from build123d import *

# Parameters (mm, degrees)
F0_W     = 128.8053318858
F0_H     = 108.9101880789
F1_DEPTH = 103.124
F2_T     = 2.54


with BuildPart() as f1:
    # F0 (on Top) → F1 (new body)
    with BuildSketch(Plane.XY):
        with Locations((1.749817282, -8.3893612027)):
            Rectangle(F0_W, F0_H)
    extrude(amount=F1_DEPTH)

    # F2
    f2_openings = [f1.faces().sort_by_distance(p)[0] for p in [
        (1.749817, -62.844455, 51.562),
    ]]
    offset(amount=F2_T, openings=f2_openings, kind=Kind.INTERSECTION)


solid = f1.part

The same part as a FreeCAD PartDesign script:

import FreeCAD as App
import Part
import Sketcher
Q = App.Units.Quantity


def faces_at(feature, points):
    """Names of the faces that lie closest to the given points."""
    faces = feature.Shape.Faces
    near = lambda p: min(range(len(faces)), key=lambda i: faces[i].distToShape(Part.Vertex(*p))[0])
    return sorted({f"Face{near(p) + 1}" for p in points})

doc = App.newDocument("Part")
body = doc.addObject("PartDesign::Body", "Body")

# Sketch on XY plane
sketch1 = body.newObject("Sketcher::SketchObject", "Sketch")
sketch1.AttachmentSupport = (doc.getObject("XY_Plane"), [""])
sketch1.MapMode = "FlatFace"
sketch1.addGeometry([
    Part.LineSegment(App.Vector(-62.652849, 46.065733, 0), App.Vector(-62.652849, -62.844455, 0)),
    Part.LineSegment(App.Vector(-62.652849, -62.844455, 0), App.Vector(66.152483, -62.844455, 0)),
    Part.LineSegment(App.Vector(66.152483, -62.844455, 0), App.Vector(66.152483, 46.065733, 0)),
    Part.LineSegment(App.Vector(66.152483, 46.065733, 0), App.Vector(-62.652849, 46.065733, 0)),
], False)
sketch1.addConstraint([
    Sketcher.Constraint("Coincident", 0, 2, 1, 1),
    Sketcher.Constraint("Coincident", 1, 2, 2, 1),
    Sketcher.Constraint("Coincident", 2, 2, 3, 1),
    Sketcher.Constraint("Coincident", 3, 2, 0, 1),
    Sketcher.Constraint("Vertical", 0),
    Sketcher.Constraint("Horizontal", 1),
    Sketcher.Constraint("Vertical", 2),
    Sketcher.Constraint("Horizontal", 3),
    Sketcher.Constraint("DistanceX", 1, 1, 1, 2, 128.805332),
    Sketcher.Constraint("DistanceY", 0, 2, 0, 1, 108.910188),
    Sketcher.Constraint("DistanceX", 0, 2, -1, 1, 62.652849),
    Sketcher.Constraint("DistanceY", 0, 2, -1, 1, 62.844455),
])
pad1 = body.newObject("PartDesign::Pad", "Pad")
pad1.Profile = sketch1
pad1.Length = Q("4.06 in")
doc.recompute()

thickness = body.newObject("PartDesign::Thickness", "Thickness")
thickness.Base = (pad1, faces_at(pad1, [(1.75, -62.844, 51.562)]))
thickness.Value = Q("0.1 in")
thickness.Reversed = False
thickness.Join = "Intersection"

doc.recompute()
